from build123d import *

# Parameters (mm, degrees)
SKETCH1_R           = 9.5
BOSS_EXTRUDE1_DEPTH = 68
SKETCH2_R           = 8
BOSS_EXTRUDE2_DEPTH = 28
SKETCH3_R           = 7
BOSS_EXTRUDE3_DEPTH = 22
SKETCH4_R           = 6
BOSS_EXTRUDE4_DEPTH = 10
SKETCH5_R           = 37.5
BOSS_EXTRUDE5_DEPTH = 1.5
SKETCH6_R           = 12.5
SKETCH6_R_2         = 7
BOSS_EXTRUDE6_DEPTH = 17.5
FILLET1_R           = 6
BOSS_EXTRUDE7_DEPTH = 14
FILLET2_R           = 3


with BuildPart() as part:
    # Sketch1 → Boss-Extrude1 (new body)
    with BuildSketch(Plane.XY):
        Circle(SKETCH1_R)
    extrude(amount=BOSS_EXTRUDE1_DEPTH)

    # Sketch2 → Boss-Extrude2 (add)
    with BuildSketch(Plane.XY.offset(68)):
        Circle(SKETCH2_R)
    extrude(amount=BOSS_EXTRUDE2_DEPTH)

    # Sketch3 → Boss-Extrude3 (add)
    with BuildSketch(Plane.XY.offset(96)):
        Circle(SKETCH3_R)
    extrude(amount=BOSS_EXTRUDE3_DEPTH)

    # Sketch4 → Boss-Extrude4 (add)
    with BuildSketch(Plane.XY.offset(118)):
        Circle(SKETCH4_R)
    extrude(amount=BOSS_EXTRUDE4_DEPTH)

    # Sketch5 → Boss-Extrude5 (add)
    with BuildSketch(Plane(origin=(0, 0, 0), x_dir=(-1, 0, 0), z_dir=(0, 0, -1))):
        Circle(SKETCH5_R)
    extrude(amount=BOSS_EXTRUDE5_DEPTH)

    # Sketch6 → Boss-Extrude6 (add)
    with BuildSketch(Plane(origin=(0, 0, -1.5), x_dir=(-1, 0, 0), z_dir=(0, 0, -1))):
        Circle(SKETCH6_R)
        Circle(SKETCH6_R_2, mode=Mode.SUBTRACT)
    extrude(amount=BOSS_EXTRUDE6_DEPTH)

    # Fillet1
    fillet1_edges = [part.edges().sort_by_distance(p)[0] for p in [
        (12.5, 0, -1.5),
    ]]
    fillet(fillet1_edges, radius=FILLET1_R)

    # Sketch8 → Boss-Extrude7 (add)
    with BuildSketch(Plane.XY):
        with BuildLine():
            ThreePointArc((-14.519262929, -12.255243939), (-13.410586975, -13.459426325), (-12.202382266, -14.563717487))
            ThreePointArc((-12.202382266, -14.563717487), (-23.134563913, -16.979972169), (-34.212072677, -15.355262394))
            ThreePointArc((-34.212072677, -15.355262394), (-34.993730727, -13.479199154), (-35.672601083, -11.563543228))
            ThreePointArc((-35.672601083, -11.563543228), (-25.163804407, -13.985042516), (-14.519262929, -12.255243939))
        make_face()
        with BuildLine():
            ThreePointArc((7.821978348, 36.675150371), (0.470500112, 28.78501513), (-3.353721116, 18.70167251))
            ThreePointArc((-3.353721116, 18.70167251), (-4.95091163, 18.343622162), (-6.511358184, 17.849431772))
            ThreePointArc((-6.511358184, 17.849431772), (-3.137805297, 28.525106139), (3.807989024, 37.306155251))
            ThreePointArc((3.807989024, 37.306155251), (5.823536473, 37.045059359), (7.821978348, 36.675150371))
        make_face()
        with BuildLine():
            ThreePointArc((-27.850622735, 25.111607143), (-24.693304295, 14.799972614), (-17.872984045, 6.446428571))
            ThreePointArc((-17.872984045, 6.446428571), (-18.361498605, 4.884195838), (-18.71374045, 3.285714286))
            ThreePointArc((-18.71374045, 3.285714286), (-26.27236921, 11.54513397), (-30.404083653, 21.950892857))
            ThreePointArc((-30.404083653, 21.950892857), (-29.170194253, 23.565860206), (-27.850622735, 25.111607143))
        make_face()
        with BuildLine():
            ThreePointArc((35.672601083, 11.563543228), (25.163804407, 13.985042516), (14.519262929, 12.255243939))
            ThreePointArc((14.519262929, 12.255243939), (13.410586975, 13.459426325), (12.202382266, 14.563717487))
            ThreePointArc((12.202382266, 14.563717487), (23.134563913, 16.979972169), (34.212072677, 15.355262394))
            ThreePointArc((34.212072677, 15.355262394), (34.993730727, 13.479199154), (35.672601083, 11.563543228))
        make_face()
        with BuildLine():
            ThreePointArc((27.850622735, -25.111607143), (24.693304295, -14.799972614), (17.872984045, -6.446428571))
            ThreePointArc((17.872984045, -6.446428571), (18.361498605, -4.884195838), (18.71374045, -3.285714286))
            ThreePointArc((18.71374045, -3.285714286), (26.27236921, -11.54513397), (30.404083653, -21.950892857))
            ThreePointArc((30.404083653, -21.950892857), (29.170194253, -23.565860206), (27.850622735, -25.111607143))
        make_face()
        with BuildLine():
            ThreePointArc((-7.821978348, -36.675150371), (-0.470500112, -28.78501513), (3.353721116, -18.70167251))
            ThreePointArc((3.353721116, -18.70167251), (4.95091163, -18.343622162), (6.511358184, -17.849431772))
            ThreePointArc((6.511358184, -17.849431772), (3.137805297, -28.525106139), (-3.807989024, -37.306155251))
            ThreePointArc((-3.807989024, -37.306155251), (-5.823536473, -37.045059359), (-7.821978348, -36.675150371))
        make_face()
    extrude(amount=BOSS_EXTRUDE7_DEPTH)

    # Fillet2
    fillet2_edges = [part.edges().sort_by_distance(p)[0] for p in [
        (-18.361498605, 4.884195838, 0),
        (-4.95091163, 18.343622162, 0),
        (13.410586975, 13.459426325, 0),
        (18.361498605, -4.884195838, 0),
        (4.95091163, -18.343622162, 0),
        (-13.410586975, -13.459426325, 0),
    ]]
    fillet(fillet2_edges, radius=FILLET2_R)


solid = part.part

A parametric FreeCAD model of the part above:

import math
import FreeCAD as App
import Part
import Sketcher
Q = App.Units.Quantity


def edges_at(feature, points):
    """Names of the edges that pass closest to the given points."""
    edges = feature.Shape.Edges
    near = lambda p: min(range(len(edges)), key=lambda i: edges[i].distToShape(Part.Vertex(*p))[0])
    return sorted({f"Edge{near(p) + 1}" for p in points})

doc = App.newDocument("Part")
body = doc.addObject("PartDesign::Body", "Body")

# Sketch on XY plane
sketch1 = doc.addObject("Sketcher::SketchObject", "Sketch")
body.addObject(sketch1)
sketch1.AttachmentSupport = (doc.XY_Plane, [""])
sketch1.MapMode = "FlatFace"
sketch1.addGeometry(Part.Circle(App.Vector(0, 0, 0), App.Vector(0, 0, 1), 9.5), False)
sketch1.addConstraint([
    Sketcher.Constraint("Coincident", 0, 3, -1, 1),
    Sketcher.Constraint("Diameter", 0, Q("19 mm")),
])
pad1 = doc.addObject("PartDesign::Pad", "Pad")
body.addObject(pad1)
pad1.Profile = sketch1
pad1.Length = 68

# Sketch on XY plane
sketch2 = doc.addObject("Sketcher::SketchObject", "Sketch001")
body.addObject(sketch2)
sketch2.AttachmentSupport = (doc.XY_Plane, [""])
sketch2.MapMode = "FlatFace"
sketch2.AttachmentOffset = App.Placement(App.Vector(0, 0, 68), App.Rotation())
sketch2.addGeometry(Part.Circle(App.Vector(0, 0, 0), App.Vector(0, 0, 1), 8), False)
sketch2.addConstraint([
    Sketcher.Constraint("Coincident", 0, 3, -1, 1),
    Sketcher.Constraint("Diameter", 0, Q("16 mm")),
])
pad2 = doc.addObject("PartDesign::Pad", "Pad001")
body.addObject(pad2)
pad2.Profile = sketch2
pad2.Length = 28

# Sketch on XY plane
sketch3 = doc.addObject("Sketcher::SketchObject", "Sketch002")
body.addObject(sketch3)
sketch3.AttachmentSupport = (doc.XY_Plane, [""])
sketch3.MapMode = "FlatFace"
sketch3.AttachmentOffset = App.Placement(App.Vector(0, 0, 96), App.Rotation())
sketch3.addGeometry(Part.Circle(App.Vector(0, 0, 0), App.Vector(0, 0, 1), 7), False)
sketch3.addConstraint([
    Sketcher.Constraint("Coincident", 0, 3, -1, 1),
    Sketcher.Constraint("Diameter", 0, Q("14 mm")),
])
pad3 = doc.addObject("PartDesign::Pad", "Pad002")
body.addObject(pad3)
pad3.Profile = sketch3
pad3.Length = 22

# Sketch on XY plane
sketch4 = doc.addObject("Sketcher::SketchObject", "Sketch003")
body.addObject(sketch4)
sketch4.AttachmentSupport = (doc.XY_Plane, [""])
sketch4.MapMode = "FlatFace"
sketch4.AttachmentOffset = App.Placement(App.Vector(0, 0, 118), App.Rotation())
sketch4.addGeometry(Part.Circle(App.Vector(0, 0, 0), App.Vector(0, 0, 1), 6), False)
sketch4.addConstraint([
    Sketcher.Constraint("Coincident", 0, 3, -1, 1),
    Sketcher.Constraint("Diameter", 0, Q("12 mm")),
])
pad4 = doc.addObject("PartDesign::Pad", "Pad003")
body.addObject(pad4)
pad4.Profile = sketch4
pad4.Length = 10

# Sketch on XY plane
sketch5 = doc.addObject("Sketcher::SketchObject", "Sketch004")
body.addObject(sketch5)
sketch5.AttachmentSupport = (doc.XY_Plane, [""])
sketch5.MapMode = "FlatFace"
sketch5.addGeometry(Part.Circle(App.Vector(0, 0, 0), App.Vector(0, 0, 1), 37.5), False)
sketch5.addConstraint([
    Sketcher.Constraint("Coincident", 0, 3, -1, 1),
    Sketcher.Constraint("Diameter", 0, Q("75 mm")),
])
pad5 = doc.addObject("PartDesign::Pad", "Pad004")
body.addObject(pad5)
pad5.Profile = sketch5
pad5.Length = 1.5
pad5.Reversed = True

# Sketch on XY plane
sketch6 = doc.addObject("Sketcher::SketchObject", "Sketch005")
body.addObject(sketch6)
sketch6.AttachmentSupport = (doc.XY_Plane, [""])
sketch6.MapMode = "FlatFace"
sketch6.AttachmentOffset = App.Placement(App.Vector(0, 0, -1.5), App.Rotation())
sketch6.addGeometry([
    Part.Circle(App.Vector(0, 0, 0), App.Vector(0, 0, 1), 12.5),
    Part.Circle(App.Vector(0, 0, 0), App.Vector(0, 0, 1), 7),
], False)
sketch6.addConstraint([
    Sketcher.Constraint("Coincident", 0, 3, -1, 1),
    Sketcher.Constraint("Coincident", 1, 3, -1, 1),
    Sketcher.Constraint("Diameter", 0, Q("25 mm")),
    Sketcher.Constraint("Diameter", 1, Q("14 mm")),
])
pad6 = doc.addObject("PartDesign::Pad", "Pad005")
body.addObject(pad6)
pad6.Profile = sketch6
pad6.Length = 17.5
pad6.Reversed = True
doc.recompute()

fillet = doc.addObject("PartDesign::Fillet", "Fillet")
body.addObject(fillet)
fillet.Base = (pad6, edges_at(pad6, [(12.5, 0, -1.5)]))
fillet.Radius = 6

# Sketch on XY plane
sketch7 = doc.addObject("Sketcher::SketchObject", "Sketch006")
body.addObject(sketch7)
sketch7.AttachmentSupport = (doc.XY_Plane, [""])
sketch7.MapMode = "FlatFace"
sketch7.addGeometry([
    Part.ArcOfCircle(Part.Circle(App.Vector(0, 0, 0), App.Vector(0, 0, 1), 19), math.radians(-139.833362), math.radians(-129.958355)),  # 0
    Part.ArcOfCircle(Part.Circle(App.Vector(-24.248711, 14, 0), App.Vector(0, 0, 1), 28), math.radians(-114.079013), math.radians(-69.666724)),  # 1
    Part.ArcOfCircle(Part.Circle(App.Vector(0, 0, 0), App.Vector(0, 0, 1), 37.5), math.radians(-162.039506), math.radians(-155.828225)),  # 2
    Part.ArcOfCircle(Part.Circle(App.Vector(-24.248711, 14, 0), App.Vector(0, 0, 1), 31), math.radians(-108.747537), math.radians(-67.133128)),  # 3
    Part.ArcOfCircle(Part.Circle(App.Vector(24.248711, 14, 0), App.Vector(0, 0, 1), 28), math.radians(125.920987), math.radians(170.333276)),  # 4
    Part.ArcOfCircle(Part.Circle(App.Vector(0, 0, 0), App.Vector(0, 0, 1), 37.5), math.radians(77.960494), math.radians(84.171775)),  # 5
    Part.ArcOfCircle(Part.Circle(App.Vector(24.248711, 14, 0), App.Vector(0, 0, 1), 31), math.radians(131.252463), math.radians(172.866872)),  # 6
    Part.ArcOfCircle(Part.Circle(App.Vector(0, 0, 0), App.Vector(0, 0, 1), 19), math.radians(100.166638), math.radians(110.041645)),  # 7
    Part.ArcOfCircle(Part.Circle(App.Vector(0, 28, 0), App.Vector(0, 0, 1), 28), math.radians(-174.079013), math.radians(-129.666724)),  # 8
    Part.ArcOfCircle(Part.Circle(App.Vector(0, 0, 0), App.Vector(0, 0, 1), 37.5), math.radians(137.960494), math.radians(144.171775)),  # 9
    Part.ArcOfCircle(Part.Circle(App.Vector(0, 28, 0), App.Vector(0, 0, 1), 31), math.radians(-168.747537), math.radians(-127.133128)),  # 10
    Part.ArcOfCircle(Part.Circle(App.Vector(0, 0, 0), App.Vector(0, 0, 1), 19), math.radians(160.166638), math.radians(170.041645)),  # 11
    Part.ArcOfCircle(Part.Circle(App.Vector(24.248711, -14, 0), App.Vector(0, 0, 1), 28), math.radians(65.920987), math.radians(110.333276)),  # 12
    Part.ArcOfCircle(Part.Circle(App.Vector(0, 0, 0), App.Vector(0, 0, 1), 37.5), math.radians(17.960494), math.radians(24.171775)),  # 13
    Part.ArcOfCircle(Part.Circle(App.Vector(24.248711, -14, 0), App.Vector(0, 0, 1), 31), math.radians(71.252463), math.radians(112.866872)),  # 14
    Part.ArcOfCircle(Part.Circle(App.Vector(0, 0, 0), App.Vector(0, 0, 1), 19), math.radians(40.166638), math.radians(50.041645)),  # 15
    Part.ArcOfCircle(Part.Circle(App.Vector(0, -28, 0), App.Vector(0, 0, 1), 28), math.radians(5.920987), math.radians(50.333276)),  # 16
    Part.ArcOfCircle(Part.Circle(App.Vector(0, 0, 0), App.Vector(0, 0, 1), 37.5), math.radians(-42.039506), math.radians(-35.828225)),  # 17
    Part.ArcOfCircle(Part.Circle(App.Vector(0, -28, 0), App.Vector(0, 0, 1), 31), math.radians(11.252463), math.radians(52.866872)),  # 18
    Part.ArcOfCircle(Part.Circle(App.Vector(0, 0, 0), App.Vector(0, 0, 1), 19), math.radians(-19.833362), math.radians(-9.958355)),  # 19
    Part.ArcOfCircle(Part.Circle(App.Vector(-24.248711, -14, 0), App.Vector(0, 0, 1), 28), math.radians(-54.079013), math.radians(-9.666724)),  # 20
    Part.ArcOfCircle(Part.Circle(App.Vector(0, 0, 0), App.Vector(0, 0, 1), 37.5), math.radians(-102.039506), math.radians(-95.828225)),  # 21
    Part.ArcOfCircle(Part.Circle(App.Vector(-24.248711, -14, 0), App.Vector(0, 0, 1), 31), math.radians(-48.747537), math.radians(-7.133128)),  # 22
    Part.ArcOfCircle(Part.Circle(App.Vector(0, 0, 0), App.Vector(0, 0, 1), 19), math.radians(-79.833362), math.radians(-69.958355)),  # 23
], False)
sketch7.addConstraint([
    Sketcher.Constraint("Coincident", 0, 1, 1, 2),
    Sketcher.Constraint("Coincident", 1, 1, 2, 1),
    Sketcher.Constraint("Coincident", 2, 2, 3, 1),
    Sketcher.Constraint("Coincident", 3, 2, 0, 2),
    Sketcher.Constraint("Coincident", 4, 1, 5, 1),
    Sketcher.Constraint("Coincident", 5, 2, 6, 1),
    Sketcher.Constraint("Coincident", 6, 2, 7, 2),
    Sketcher.Constraint("Coincident", 7, 1, 4, 2),
    Sketcher.Constraint("Coincident", 8, 1, 9, 1),
    Sketcher.Constraint("Coincident", 9, 2, 10, 1),
    Sketcher.Constraint("Coincident", 10, 2, 11, 2),
    Sketcher.Constraint("Coincident", 11, 1, 8, 2),
    Sketcher.Constraint("Coincident", 12, 1, 13, 1),
    Sketcher.Constraint("Coincident", 13, 2, 14, 1),
    Sketcher.Constraint("Coincident", 14, 2, 15, 2),
    Sketcher.Constraint("Coincident", 15, 1, 12, 2),
    Sketcher.Constraint("Coincident", 16, 1, 17, 1),
    Sketcher.Constraint("Coincident", 17, 2, 18, 1),
    Sketcher.Constraint("Coincident", 18, 2, 19, 2),
    Sketcher.Constraint("Coincident", 19, 1, 16, 2),
    Sketcher.Constraint("Coincident", 20, 1, 21, 1),
    Sketcher.Constraint("Coincident", 21, 2, 22, 1),
    Sketcher.Constraint("Coincident", 22, 2, 23, 2),
    Sketcher.Constraint("Coincident", 23, 1, 20, 2),
    Sketcher.Constraint("Coincident", 0, 3, -1, 1),
    Sketcher.Constraint("Coincident", 2, 3, -1, 1),
    Sketcher.Constraint("Coincident", 5, 3, -1, 1),
    Sketcher.Constraint("Coincident", 7, 3, -1, 1),
    Sketcher.Constraint("Coincident", 9, 3, -1, 1),
    Sketcher.Constraint("Coincident", 11, 3, -1, 1),
    Sketcher.Constraint("Coincident", 13, 3, -1, 1),
    Sketcher.Constraint("Coincident", 15, 3, -1, 1),
    Sketcher.Constraint("Coincident", 17, 3, -1, 1),
    Sketcher.Constraint("Coincident", 19, 3, -1, 1),
    Sketcher.Constraint("Coincident", 21, 3, -1, 1),
    Sketcher.Constraint("Coincident", 23, 3, -1, 1),
    Sketcher.Constraint("Coincident", 3, 3, 1, 3),
    Sketcher.Constraint("Coincident", 6, 3, 4, 3),
    Sketcher.Constraint("Coincident", 10, 3, 8, 3),
    Sketcher.Constraint("Coincident", 14, 3, 12, 3),
    Sketcher.Constraint("Coincident", 18, 3, 16, 3),
    Sketcher.Constraint("Coincident", 22, 3, 20, 3),
    Sketcher.Constraint("Equal", 1, 4),
    Sketcher.Constraint("Equal", 2, 5),
    Sketcher.Constraint("Equal", 3, 6),
    Sketcher.Constraint("Equal", 0, 7),
    Sketcher.Constraint("Equal", 4, 8),
    Sketcher.Constraint("Equal", 5, 9),
    Sketcher.Constraint("Equal", 6, 10),
    Sketcher.Constraint("Equal", 7, 11),
    Sketcher.Constraint("Equal", 8, 12),
    Sketcher.Constraint("Equal", 9, 13),
    Sketcher.Constraint("Equal", 10, 14),
    Sketcher.Constraint("Equal", 11, 15),
    Sketcher.Constraint("Equal", 12, 16),
    Sketcher.Constraint("Equal", 13, 17),
    Sketcher.Constraint("Equal", 14, 18),
    Sketcher.Constraint("Equal", 15, 19),
    Sketcher.Constraint("Equal", 16, 20),
    Sketcher.Constraint("Equal", 17, 21),
    Sketcher.Constraint("Equal", 18, 22),
    Sketcher.Constraint("Equal", 19, 23),
    Sketcher.Constraint("Symmetric", 1, 3, 12, 3, -1, 1),
    Sketcher.Constraint("Symmetric", 8, 3, 16, 3, -1, 1),
    Sketcher.Constraint("Symmetric", 4, 3, 20, 3, -1, 1),
    Sketcher.Constraint("Symmetric", 1, 3, 4, 3, -2),
    Sketcher.Constraint("PointOnObject", 8, 3, -2),
    Sketcher.Constraint("Radius", 0, Q("19 mm")),
    Sketcher.Constraint("Radius", 1, Q("28 mm")),
    Sketcher.Constraint("Radius", 3, Q("31 mm")),
    Sketcher.Constraint("Radius", 2, Q("37.5 mm")),
    Sketcher.Constraint("DistanceY", -1, 1, 1, 3, Q("14 mm")),
    Sketcher.Constraint("DistanceY", -1, 1, 8, 3, Q("28 mm")),
    Sketcher.Constraint("DistanceX", 1, 1, -1, 1, Q("35.672601 mm")),
])
pad7 = doc.addObject("PartDesign::Pad", "Pad006")
body.addObject(pad7)
pad7.Profile = sketch7
pad7.Length = 14
doc.recompute()

fillet2 = doc.addObject("PartDesign::Fillet", "Fillet001")
body.addObject(fillet2)
fillet2.Base = (pad7, edges_at(pad7, [
    (-18.361, 4.884, 0),
    (-4.951, 18.344, 0),
    (13.411, 13.459, 0),
    (18.361, -4.884, 0),
    (4.951, -18.344, 0),
    (-13.411, -13.459, 0),
]))
fillet2.Radius = 3

doc.recompute()
